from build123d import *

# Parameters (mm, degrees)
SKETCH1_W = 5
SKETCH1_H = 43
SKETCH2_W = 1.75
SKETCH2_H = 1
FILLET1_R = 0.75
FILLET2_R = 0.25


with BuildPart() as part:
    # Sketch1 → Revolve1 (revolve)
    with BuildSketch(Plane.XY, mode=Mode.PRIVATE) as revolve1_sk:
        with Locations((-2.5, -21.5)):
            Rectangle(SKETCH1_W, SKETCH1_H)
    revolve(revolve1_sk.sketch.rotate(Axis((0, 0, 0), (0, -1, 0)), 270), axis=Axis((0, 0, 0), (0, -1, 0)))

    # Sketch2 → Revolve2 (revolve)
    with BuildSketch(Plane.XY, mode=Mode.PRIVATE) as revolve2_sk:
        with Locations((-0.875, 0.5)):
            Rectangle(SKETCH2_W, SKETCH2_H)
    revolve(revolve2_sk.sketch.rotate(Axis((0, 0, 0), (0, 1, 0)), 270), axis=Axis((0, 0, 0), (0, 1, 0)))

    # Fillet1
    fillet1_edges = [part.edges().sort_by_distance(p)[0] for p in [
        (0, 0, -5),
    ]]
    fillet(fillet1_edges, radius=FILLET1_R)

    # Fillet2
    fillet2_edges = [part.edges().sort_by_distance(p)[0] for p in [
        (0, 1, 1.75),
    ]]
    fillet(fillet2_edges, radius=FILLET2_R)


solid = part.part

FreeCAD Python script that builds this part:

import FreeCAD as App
import Part
import Sketcher

V = App.Vector
Q = App.Units.Quantity


def edges_at(feature, points):
    """Names of the edges that pass closest to the given points."""
    edges = feature.Shape.Edges
    near = lambda p: min(range(len(edges)), key=lambda i: edges[i].distToShape(Part.Vertex(*p))[0])
    return sorted({f"Edge{near(p) + 1}" for p in points})


def add_polygon(sketch, points):
    """Adds a closed chain of lines whose ends are joined by coincident constraints."""
    first, n = sketch.GeometryCount, len(points)
    for a, b in zip(points, points[1:] + points[:1]):
        sketch.addGeometry(Part.LineSegment(App.Vector(*a, 0), App.Vector(*b, 0)), False)
    for i in range(n):
        sketch.addConstraint(Sketcher.Constraint("Coincident", first + i, 2, first + (i + 1) % n, 1))

doc = App.newDocument("Part")
body = doc.addObject("PartDesign::Body", "Body")

sketch1 = doc.addObject("Sketcher::SketchObject", "Sketch")
body.addObject(sketch1)
sketch1.AttachmentSupport = (doc.XY_Plane, [""])
sketch1.MapMode = "FlatFace"
add_polygon(sketch1, [(-5, 0), (-5, -43), (0, -43), (0, 0)])
sketch1.addConstraint(Sketcher.Constraint("Vertical", 0))
sketch1.addConstraint(Sketcher.Constraint("Horizontal", 1))
sketch1.addConstraint(Sketcher.Constraint("Vertical", 2))
sketch1.addConstraint(Sketcher.Constraint("Horizontal", 3))
sketch1.addConstraint(Sketcher.Constraint("Coincident", 2, 2, -1, 1))
sketch1.addConstraint(Sketcher.Constraint("DistanceX", 1, 1, 1, 2, Q("5 mm")))
sketch1.addConstraint(Sketcher.Constraint("DistanceY", 0, 2, 0, 1, Q("43 mm")))
revolution = doc.addObject("PartDesign::Revolution", "Revolution")
body.addObject(revolution)
revolution.Profile = sketch1
revolution.ReferenceAxis = (sketch1, ["V_Axis"])
revolution.Angle = 360

sketch2 = doc.addObject("Sketcher::SketchObject", "Sketch001")
body.addObject(sketch2)
sketch2.AttachmentSupport = (doc.XY_Plane, [""])
sketch2.MapMode = "FlatFace"
add_polygon(sketch2, [(-1.75, 1), (-1.75, 0), (0, 0), (0, 1)])
sketch2.addConstraint(Sketcher.Constraint("Vertical", 0))
sketch2.addConstraint(Sketcher.Constraint("Horizontal", 1))
sketch2.addConstraint(Sketcher.Constraint("Vertical", 2))
sketch2.addConstraint(Sketcher.Constraint("Horizontal", 3))
sketch2.addConstraint(Sketcher.Constraint("Coincident", 1, 2, -1, 1))
sketch2.addConstraint(Sketcher.Constraint("DistanceY", 0, 2, 0, 1, Q("1 mm")))
sketch2.addConstraint(Sketcher.Constraint("DistanceX", 1, 1, 1, 2, Q("1.75 mm")))
revolution2 = doc.addObject("PartDesign::Revolution", "Revolution001")
body.addObject(revolution2)
revolution2.Profile = sketch2
revolution2.ReferenceAxis = (sketch2, ["V_Axis"])
revolution2.Angle = 360
doc.recompute()

fillet = doc.addObject("PartDesign::Fillet", "Fillet")
body.addObject(fillet)
fillet.Base = (revolution2, edges_at(revolution2, [(0, 0, -5)]))
fillet.Radius = 0.75
doc.recompute()

fillet2 = doc.addObject("PartDesign::Fillet", "Fillet001")
body.addObject(fillet2)
fillet2.Base = (fillet, edges_at(fillet, [(0, 1, 1.75)]))
fillet2.Radius = 0.25

doc.recompute()
